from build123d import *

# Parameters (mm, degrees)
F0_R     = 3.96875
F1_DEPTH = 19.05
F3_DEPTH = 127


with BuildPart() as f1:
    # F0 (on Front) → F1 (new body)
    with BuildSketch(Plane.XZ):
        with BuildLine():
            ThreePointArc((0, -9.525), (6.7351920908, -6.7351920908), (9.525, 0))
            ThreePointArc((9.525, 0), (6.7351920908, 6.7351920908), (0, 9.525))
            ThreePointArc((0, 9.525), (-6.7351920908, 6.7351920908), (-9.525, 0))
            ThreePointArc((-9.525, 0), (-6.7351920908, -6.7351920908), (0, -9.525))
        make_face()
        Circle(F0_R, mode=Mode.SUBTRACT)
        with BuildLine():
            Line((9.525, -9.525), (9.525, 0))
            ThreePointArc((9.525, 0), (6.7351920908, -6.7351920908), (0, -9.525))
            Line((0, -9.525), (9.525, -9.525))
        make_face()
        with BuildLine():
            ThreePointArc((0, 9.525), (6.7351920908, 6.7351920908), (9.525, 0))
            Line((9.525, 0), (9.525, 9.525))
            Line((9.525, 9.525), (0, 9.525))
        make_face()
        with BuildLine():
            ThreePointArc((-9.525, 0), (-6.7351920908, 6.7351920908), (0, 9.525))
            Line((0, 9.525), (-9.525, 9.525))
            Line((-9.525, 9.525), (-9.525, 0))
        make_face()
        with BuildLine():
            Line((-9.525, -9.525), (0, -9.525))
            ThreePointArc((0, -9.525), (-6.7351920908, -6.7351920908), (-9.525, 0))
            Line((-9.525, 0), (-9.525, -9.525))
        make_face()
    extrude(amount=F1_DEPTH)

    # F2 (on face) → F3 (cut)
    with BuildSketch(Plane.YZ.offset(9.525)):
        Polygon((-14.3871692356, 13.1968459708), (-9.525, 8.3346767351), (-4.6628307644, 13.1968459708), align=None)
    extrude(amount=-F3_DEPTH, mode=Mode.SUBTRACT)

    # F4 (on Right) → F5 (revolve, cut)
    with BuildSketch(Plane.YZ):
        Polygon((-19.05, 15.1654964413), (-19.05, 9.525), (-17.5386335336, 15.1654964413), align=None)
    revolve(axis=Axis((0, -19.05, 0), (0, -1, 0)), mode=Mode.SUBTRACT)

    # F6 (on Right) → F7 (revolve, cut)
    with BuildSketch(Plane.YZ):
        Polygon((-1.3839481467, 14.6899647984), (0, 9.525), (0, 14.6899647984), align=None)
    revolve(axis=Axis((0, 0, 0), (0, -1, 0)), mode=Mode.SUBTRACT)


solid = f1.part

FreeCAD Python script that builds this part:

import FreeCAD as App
import Part
import Sketcher
from FreeCAD import Vector
Q = App.Units.Quantity


def add_polygon(sketch, points):
    """Adds a closed chain of lines whose ends are joined by coincident constraints."""
    first, n = sketch.GeometryCount, len(points)
    for a, b in zip(points, points[1:] + points[:1]):
        sketch.addGeometry(Part.LineSegment(App.Vector(*a, 0), App.Vector(*b, 0)), False)
    for i in range(n):
        sketch.addConstraint(Sketcher.Constraint("Coincident", first + i, 2, first + (i + 1) % n, 1))

doc = App.newDocument("Part")
body = doc.addObject("PartDesign::Body", "Body")

# Sketch on XZ plane
sketch1 = doc.addObject("Sketcher::SketchObject", "Sketch")
body.addObject(sketch1)
sketch1.AttachmentSupport = (doc.XZ_Plane, [""])
sketch1.MapMode = "FlatFace"
add_polygon(sketch1, [(9.5, -9.5), (9.5, 9.5), (-9.5, 9.5), (-9.5, -9.5)])  # lines 0-3
sketch1.addGeometry(Part.Circle(Vector(0, 0, 0), Vector(0, 0, 1), 4), False)  # 4
sketch1.addConstraint(Sketcher.Constraint("Vertical", 0))
sketch1.addConstraint(Sketcher.Constraint("Horizontal", 1))
sketch1.addConstraint(Sketcher.Constraint("Vertical", 2))
sketch1.addConstraint(Sketcher.Constraint("Horizontal", 3))
sketch1.addConstraint(Sketcher.Constraint("Coincident", 4, 3, -1, 1))
sketch1.addConstraint(Sketcher.Constraint("Symmetric", 0, 2, 2, 2, -1, 1))
sketch1.addConstraint(Sketcher.Constraint("Equal", 3, 0))
sketch1.addConstraint(Sketcher.Constraint("Diameter", 4, Q("0.3125 in")))
sketch1.addConstraint(Sketcher.Constraint("DistanceX", 1, 2, 1, 1, Q("0.75 in")))
pad1 = doc.addObject("PartDesign::Pad", "Pad")
body.addObject(pad1)
pad1.Profile = sketch1
pad1.Length = Q("0.75 in")

# Sketch on YZ plane
sketch2 = doc.addObject("Sketcher::SketchObject", "Sketch001")
body.addObject(sketch2)
sketch2.AttachmentSupport = (doc.YZ_Plane, [""])
sketch2.MapMode = "FlatFace"
sketch2.AttachmentOffset = App.Placement(Vector(0, 0, 0.375 * 25.4), App.Rotation())
add_polygon(sketch2, [(-14, 13), (-10, 8), (-5, 13)])  # lines 0-2
sketch2.addConstraint(Sketcher.Constraint("Horizontal", 2))
sketch2.addConstraint(Sketcher.Constraint("Perpendicular", 0, 1))
sketch2.addConstraint(Sketcher.Constraint("Equal", 0, 1))
sketch2.addConstraint(Sketcher.Constraint("DistanceX", 0, 2, -1, 1, Q("0.375 in")))
sketch2.addConstraint(Sketcher.Constraint("DistanceX", 2, 2, 2, 1, 9.724338))
sketch2.addConstraint(Sketcher.Constraint("DistanceY", -1, 1, 0, 2, 8.334677))
pocket1 = doc.addObject("PartDesign::Pocket", "Pocket")
body.addObject(pocket1)
pocket1.Profile = sketch2
pocket1.Length = Q("5 in")

# Sketch on YZ plane
sketch3 = doc.addObject("Sketcher::SketchObject", "Sketch002")
body.addObject(sketch3)
sketch3.AttachmentSupport = (doc.YZ_Plane, [""])
sketch3.MapMode = "FlatFace"
add_polygon(sketch3, [(-19.1, 15.2), (-19.1, 9.5), (-17.5, 15.2)])  # lines 0-2
sketch3.addConstraint(Sketcher.Constraint("Vertical", 0))
sketch3.addConstraint(Sketcher.Constraint("Horizontal", 2))
sketch3.addConstraint(Sketcher.Constraint("Angle", 1, Q("75 deg")))
sketch3.addConstraint(Sketcher.Constraint("DistanceX", 0, 2, -1, 1, Q("0.75 in")))
sketch3.addConstraint(Sketcher.Constraint("DistanceY", -1, 1, 0, 2, Q("0.375 in")))
sketch3.addConstraint(Sketcher.Constraint("Distance", 1, 5.839472))
groove = doc.addObject("PartDesign::Groove", "Groove")
body.addObject(groove)
groove.Profile = sketch3
groove.ReferenceAxis = (sketch3, ["H_Axis"])
groove.Angle = 360

# Sketch on YZ plane
sketch4 = doc.addObject("Sketcher::SketchObject", "Sketch003")
body.addObject(sketch4)
sketch4.AttachmentSupport = (doc.YZ_Plane, [""])
sketch4.MapMode = "FlatFace"
add_polygon(sketch4, [(-1.4, 14.7), (0, 9.5), (0, 14.7)])  # lines 0-2
sketch4.addConstraint(Sketcher.Constraint("Vertical", 1))
sketch4.addConstraint(Sketcher.Constraint("Horizontal", 2))
sketch4.addConstraint(Sketcher.Constraint("PointOnObject", 0, 2, -2))
sketch4.addConstraint(Sketcher.Constraint("Angle", 0, Q("-75 deg")))
sketch4.addConstraint(Sketcher.Constraint("DistanceY", -1, 1, 0, 2, Q("0.375 in")))
sketch4.addConstraint(Sketcher.Constraint("DistanceX", 2, 2, 2, 1, 1.383948))
groove2 = doc.addObject("PartDesign::Groove", "Groove001")
body.addObject(groove2)
groove2.Profile = sketch4
groove2.ReferenceAxis = (sketch4, ["H_Axis"])
groove2.Angle = 360

doc.recompute()
